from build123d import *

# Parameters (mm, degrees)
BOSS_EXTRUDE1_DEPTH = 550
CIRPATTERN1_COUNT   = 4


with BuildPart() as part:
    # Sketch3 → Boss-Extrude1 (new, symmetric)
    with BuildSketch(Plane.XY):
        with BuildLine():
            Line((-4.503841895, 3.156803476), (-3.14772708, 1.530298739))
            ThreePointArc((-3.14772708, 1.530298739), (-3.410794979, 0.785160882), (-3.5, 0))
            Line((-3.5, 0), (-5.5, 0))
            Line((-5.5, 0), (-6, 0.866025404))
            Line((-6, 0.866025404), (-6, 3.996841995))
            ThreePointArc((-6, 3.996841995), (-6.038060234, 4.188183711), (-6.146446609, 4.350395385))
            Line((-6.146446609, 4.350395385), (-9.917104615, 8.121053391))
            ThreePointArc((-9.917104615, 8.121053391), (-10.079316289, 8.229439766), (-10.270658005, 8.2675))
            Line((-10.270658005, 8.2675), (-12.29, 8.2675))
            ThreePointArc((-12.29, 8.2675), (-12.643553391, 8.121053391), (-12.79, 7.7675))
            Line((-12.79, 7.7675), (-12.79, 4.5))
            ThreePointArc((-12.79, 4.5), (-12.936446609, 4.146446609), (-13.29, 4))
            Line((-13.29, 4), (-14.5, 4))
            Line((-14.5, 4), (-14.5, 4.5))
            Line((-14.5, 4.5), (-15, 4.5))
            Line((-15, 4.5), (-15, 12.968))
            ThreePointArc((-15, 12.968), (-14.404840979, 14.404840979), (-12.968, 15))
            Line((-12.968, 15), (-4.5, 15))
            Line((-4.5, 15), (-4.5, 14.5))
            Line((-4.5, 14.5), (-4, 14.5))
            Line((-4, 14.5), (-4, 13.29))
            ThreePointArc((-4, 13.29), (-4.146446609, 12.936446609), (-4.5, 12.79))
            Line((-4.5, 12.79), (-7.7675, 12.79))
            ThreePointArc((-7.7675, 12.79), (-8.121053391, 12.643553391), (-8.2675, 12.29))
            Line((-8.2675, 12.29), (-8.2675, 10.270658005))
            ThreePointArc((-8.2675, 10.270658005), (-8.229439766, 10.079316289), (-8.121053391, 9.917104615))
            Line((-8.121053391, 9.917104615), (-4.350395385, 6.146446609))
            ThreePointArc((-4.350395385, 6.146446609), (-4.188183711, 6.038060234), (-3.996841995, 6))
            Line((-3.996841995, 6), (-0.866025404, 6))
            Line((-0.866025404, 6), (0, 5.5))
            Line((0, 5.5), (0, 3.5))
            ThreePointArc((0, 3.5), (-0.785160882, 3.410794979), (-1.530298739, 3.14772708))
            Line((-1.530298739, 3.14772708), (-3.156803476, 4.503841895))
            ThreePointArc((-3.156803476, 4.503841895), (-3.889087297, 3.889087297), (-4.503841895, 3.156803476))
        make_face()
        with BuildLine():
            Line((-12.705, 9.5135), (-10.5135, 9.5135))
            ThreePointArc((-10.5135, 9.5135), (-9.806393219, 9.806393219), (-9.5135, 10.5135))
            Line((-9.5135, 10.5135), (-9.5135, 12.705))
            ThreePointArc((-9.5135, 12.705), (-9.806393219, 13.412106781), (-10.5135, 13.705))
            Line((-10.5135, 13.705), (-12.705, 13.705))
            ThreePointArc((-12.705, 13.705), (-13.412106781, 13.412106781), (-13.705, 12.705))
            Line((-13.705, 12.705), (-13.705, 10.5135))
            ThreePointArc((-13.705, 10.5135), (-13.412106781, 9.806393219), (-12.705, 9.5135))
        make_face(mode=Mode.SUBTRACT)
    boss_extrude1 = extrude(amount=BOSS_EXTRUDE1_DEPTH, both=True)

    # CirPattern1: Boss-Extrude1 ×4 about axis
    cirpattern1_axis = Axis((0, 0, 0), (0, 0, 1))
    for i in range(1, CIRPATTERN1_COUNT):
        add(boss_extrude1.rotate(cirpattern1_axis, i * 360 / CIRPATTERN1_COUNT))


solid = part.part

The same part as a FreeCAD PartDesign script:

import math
import FreeCAD as App
import Part
import Sketcher
from FreeCAD import Vector
Q = App.Units.Quantity

doc = App.newDocument("Part")
params = doc.addObject("Spreadsheet::Sheet", "Params")
for row, (alias, value) in enumerate([
    ("sketch1_radius", "1 mm"),
    ("sketch1_radius2", "5.5 mm"),
    ("sketch1_radius3", "3.5 mm"),
    ("sketch1_radius4", "0.5 mm"),
    ("sketch1_width", "2 mm"),
    ("pad1_length", "1100 mm"),
], start=1):
    params.set(f"A{row}", alias)
    params.set(f"B{row}", "=" + value)
    params.setAlias(f"B{row}", alias)

body = doc.addObject("PartDesign::Body", "Body")

# Sketch on XY plane
sketch1 = body.newObject("Sketcher::SketchObject", "Sketch")
sketch1.AttachmentSupport = (doc.getObject("XY_Plane"), [""])
sketch1.MapMode = "FlatFace"
sketch1.addGeometry([
    Part.LineSegment(Vector(-3.147727, 1.530299, 0), Vector(-4.503842, 3.156803, 0)),  # 0
    Part.ArcOfCircle(Part.Circle(Vector(0, 0, 0), Vector(0, 0, 1), 5.5), math.radians(125.027131), math.radians(144.972869)),  # 1
    Part.LineSegment(Vector(-3.156803, 4.503842, 0), Vector(-1.530299, 3.147727, 0)),  # 2
    Part.ArcOfCircle(Part.Circle(Vector(0, 0, 0), Vector(0, 0, 1), 3.5), math.radians(90), math.radians(115.927163)),  # 3
    Part.LineSegment(Vector(0, 3.5, 0), Vector(0, 5.5, 0)),  # 4
    Part.LineSegment(Vector(0, 5.5, 0), Vector(-0.866025, 6, 0)),  # 5
    Part.LineSegment(Vector(-0.866025, 6, 0), Vector(-3.996842, 6, 0)),  # 6
    Part.ArcOfCircle(Part.Circle(Vector(-3.996842, 6.5, 0), Vector(0, 0, 1), 0.5), math.radians(-135), math.radians(-90)),  # 7
    Part.LineSegment(Vector(-4.350395, 6.146447, 0), Vector(-8.121053, 9.917105, 0)),  # 8
    Part.ArcOfCircle(Part.Circle(Vector(-7.7675, 10.270658, 0), Vector(0, 0, 1), 0.5), math.radians(-180), math.radians(-135)),  # 9
    Part.LineSegment(Vector(-8.2675, 10.270658, 0), Vector(-8.2675, 12.29, 0)),  # 10
    Part.ArcOfCircle(Part.Circle(Vector(-7.7675, 12.29, 0), Vector(0, 0, 1), 0.5), math.radians(90), math.radians(180)),  # 11
    Part.LineSegment(Vector(-7.7675, 12.79, 0), Vector(-4.5, 12.79, 0)),  # 12
    Part.ArcOfCircle(Part.Circle(Vector(-4.5, 13.29, 0), Vector(0, 0, 1), 0.5), math.radians(-90), math.radians(0)),  # 13
    Part.LineSegment(Vector(-4, 13.29, 0), Vector(-4, 14.5, 0)),  # 14
    Part.LineSegment(Vector(-4, 14.5, 0), Vector(-4.5, 14.5, 0)),  # 15
    Part.LineSegment(Vector(-4.5, 14.5, 0), Vector(-4.5, 15, 0)),  # 16
    Part.LineSegment(Vector(-4.5, 15, 0), Vector(-12.968, 15, 0)),  # 17
    Part.ArcOfCircle(Part.Circle(Vector(-12.968, 12.968, 0), Vector(0, 0, 1), 2.032), math.radians(90), math.radians(180)),  # 18
    Part.LineSegment(Vector(-15, 12.968, 0), Vector(-15, 4.5, 0)),  # 19
    Part.LineSegment(Vector(-15, 4.5, 0), Vector(-14.5, 4.5, 0)),  # 20
    Part.LineSegment(Vector(-14.5, 4.5, 0), Vector(-14.5, 4, 0)),  # 21
    Part.LineSegment(Vector(-14.5, 4, 0), Vector(-13.29, 4, 0)),  # 22
    Part.ArcOfCircle(Part.Circle(Vector(-13.29, 4.5, 0), Vector(0, 0, 1), 0.5), math.radians(-90), math.radians(0)),  # 23
    Part.LineSegment(Vector(-12.79, 4.5, 0), Vector(-12.79, 7.7675, 0)),  # 24
    Part.ArcOfCircle(Part.Circle(Vector(-12.29, 7.7675, 0), Vector(0, 0, 1), 0.5), math.radians(90), math.radians(180)),  # 25
    Part.LineSegment(Vector(-12.29, 8.2675, 0), Vector(-10.270658, 8.2675, 0)),  # 26
    Part.ArcOfCircle(Part.Circle(Vector(-10.270658, 7.7675, 0), Vector(0, 0, 1), 0.5), math.radians(45), math.radians(90)),  # 27
    Part.LineSegment(Vector(-9.917105, 8.121053, 0), Vector(-6.146447, 4.350395, 0)),  # 28
    Part.ArcOfCircle(Part.Circle(Vector(-6.5, 3.996842, 0), Vector(0, 0, 1), 0.5), math.radians(0), math.radians(45)),  # 29
    Part.LineSegment(Vector(-6, 3.996842, 0), Vector(-6, 0.866025, 0)),  # 30
    Part.LineSegment(Vector(-6, 0.866025, 0), Vector(-5.5, 0, 0)),  # 31
    Part.LineSegment(Vector(-5.5, 0, 0), Vector(-3.5, 0, 0)),  # 32
    Part.ArcOfCircle(Part.Circle(Vector(0, 0, 0), Vector(0, 0, 1), 3.5), math.radians(154.072837), math.radians(180)),  # 33
    Part.ArcOfCircle(Part.Circle(Vector(-12.705, 10.5135, 0), Vector(0, 0, 1), 1), math.radians(-180), math.radians(-90)),  # 34
    Part.LineSegment(Vector(-13.705, 10.5135, 0), Vector(-13.705, 12.705, 0)),  # 35
    Part.ArcOfCircle(Part.Circle(Vector(-12.705, 12.705, 0), Vector(0, 0, 1), 1), math.radians(90), math.radians(180)),  # 36
    Part.LineSegment(Vector(-12.705, 13.705, 0), Vector(-10.5135, 13.705, 0)),  # 37
    Part.ArcOfCircle(Part.Circle(Vector(-10.5135, 12.705, 0), Vector(0, 0, 1), 1), math.radians(0), math.radians(90)),  # 38
    Part.LineSegment(Vector(-9.5135, 12.705, 0), Vector(-9.5135, 10.5135, 0)),  # 39
    Part.ArcOfCircle(Part.Circle(Vector(-10.5135, 10.5135, 0), Vector(0, 0, 1), 1), math.radians(-90), math.radians(0)),  # 40
    Part.LineSegment(Vector(-10.5135, 9.5135, 0), Vector(-12.705, 9.5135, 0)),  # 41
], False)
sketch1.addConstraint([
    Sketcher.Constraint("Coincident", 0, 2, 1, 2),
    Sketcher.Constraint("Coincident", 1, 1, 2, 1),
    Sketcher.Constraint("Coincident", 2, 2, 3, 2),
    Sketcher.Constraint("Coincident", 3, 1, 4, 1),
    Sketcher.Constraint("Coincident", 4, 2, 5, 1),
    Sketcher.Constraint("Coincident", 5, 2, 6, 1),
    Sketcher.Constraint("Tangent", 6, 2, 7, 2),
    Sketcher.Constraint("Tangent", 7, 1, 8, 1),
    Sketcher.Constraint("Tangent", 8, 2, 9, 2),
    Sketcher.Constraint("Tangent", 9, 1, 10, 1),
    Sketcher.Constraint("Tangent", 10, 2, 11, 2),
    Sketcher.Constraint("Tangent", 11, 1, 12, 1),
    Sketcher.Constraint("Tangent", 12, 2, 13, 1),
    Sketcher.Constraint("Tangent", 13, 2, 14, 1),
    Sketcher.Constraint("Coincident", 14, 2, 15, 1),
    Sketcher.Constraint("Coincident", 15, 2, 16, 1),
    Sketcher.Constraint("Coincident", 16, 2, 17, 1),
    Sketcher.Constraint("Tangent", 17, 2, 18, 1),
    Sketcher.Constraint("Tangent", 18, 2, 19, 1),
    Sketcher.Constraint("Coincident", 19, 2, 20, 1),
    Sketcher.Constraint("Coincident", 20, 2, 21, 1),
    Sketcher.Constraint("Coincident", 21, 2, 22, 1),
    Sketcher.Constraint("Tangent", 22, 2, 23, 1),
    Sketcher.Constraint("Tangent", 23, 2, 24, 1),
    Sketcher.Constraint("Tangent", 24, 2, 25, 2),
    Sketcher.Constraint("Tangent", 25, 1, 26, 1),
    Sketcher.Constraint("Tangent", 26, 2, 27, 2),
    Sketcher.Constraint("Tangent", 27, 1, 28, 1),
    Sketcher.Constraint("Tangent", 28, 2, 29, 2),
    Sketcher.Constraint("Tangent", 29, 1, 30, 1),
    Sketcher.Constraint("Coincident", 30, 2, 31, 1),
    Sketcher.Constraint("Coincident", 31, 2, 32, 1),
    Sketcher.Constraint("Coincident", 32, 2, 33, 2),
    Sketcher.Constraint("Coincident", 33, 1, 0, 1),
    Sketcher.Constraint("Tangent", 34, 1, 35, 1),
    Sketcher.Constraint("Tangent", 35, 2, 36, 2),
    Sketcher.Constraint("Tangent", 36, 1, 37, 1),
    Sketcher.Constraint("Tangent", 37, 2, 38, 2),
    Sketcher.Constraint("Tangent", 38, 1, 39, 1),
    Sketcher.Constraint("Tangent", 39, 2, 40, 2),
    Sketcher.Constraint("Tangent", 40, 1, 41, 1),
    Sketcher.Constraint("Tangent", 41, 2, 34, 2),
    Sketcher.Constraint("Vertical", 4),
    Sketcher.Constraint("Horizontal", 6),
    Sketcher.Constraint("Vertical", 10),
    Sketcher.Constraint("Horizontal", 12),
    Sketcher.Constraint("Vertical", 14),
    Sketcher.Constraint("Horizontal", 15),
    Sketcher.Constraint("Vertical", 16),
    Sketcher.Constraint("Horizontal", 17),
    Sketcher.Constraint("Vertical", 19),
    Sketcher.Constraint("Horizontal", 20),
    Sketcher.Constraint("Vertical", 21),
    Sketcher.Constraint("Horizontal", 22),
    Sketcher.Constraint("Vertical", 24),
    Sketcher.Constraint("Horizontal", 26),
    Sketcher.Constraint("Vertical", 30),
    Sketcher.Constraint("Horizontal", 32),
    Sketcher.Constraint("Vertical", 35),
    Sketcher.Constraint("Horizontal", 37),
    Sketcher.Constraint("Vertical", 39),
    Sketcher.Constraint("Horizontal", 41),
    Sketcher.Constraint("Coincident", 1, 3, -1, 1),
    Sketcher.Constraint("Coincident", 3, 3, -1, 1),
    Sketcher.Constraint("Coincident", 33, 3, -1, 1),
    Sketcher.Constraint("Equal", 7, 9),
    Sketcher.Constraint("Equal", 9, 11),
    Sketcher.Constraint("Equal", 11, 13),
    Sketcher.Constraint("Equal", 13, 23),
    Sketcher.Constraint("Equal", 23, 25),
    Sketcher.Constraint("Equal", 25, 27),
    Sketcher.Constraint("Equal", 27, 29),
    Sketcher.Constraint("Equal", 3, 33),
    Sketcher.Constraint("Equal", 34, 36),
    Sketcher.Constraint("Equal", 36, 38),
    Sketcher.Constraint("Equal", 38, 40),
    Sketcher.Constraint("PointOnObject", 3, 1, -2),
    Sketcher.Constraint("PointOnObject", 31, 2, -1),
    Sketcher.Constraint("Parallel", 8, 28),
    Sketcher.Constraint("Horizontal", 23, 3, 19, 2),
    Sketcher.Constraint("Vertical", 12, 2, 15, 2),
    Sketcher.Constraint("Equal", 15, 20),
    Sketcher.Constraint("Equal", 32, 4),
    Sketcher.Constraint("Equal", 26, 10),
    Sketcher.Constraint("Equal", 22, 14),
    Sketcher.Constraint("Equal", 20, 16),
    Sketcher.Constraint("Equal", 17, 19),
    Sketcher.Constraint("Equal", 12, 24),
    Sketcher.Constraint("Equal", 6, 30),
    Sketcher.Constraint("Equal", 41, 35),
    Sketcher.Constraint("Equal", 0, 2),
    Sketcher.Constraint("Equal", 8, 28),
    Sketcher.Constraint("Equal", 5, 31),
    Sketcher.Constraint("Radius", 34, Q("1 mm")),
    Sketcher.Constraint("Radius", 1, Q("5.5 mm")),
    Sketcher.Constraint("Radius", 3, Q("3.5 mm")),
    Sketcher.Constraint("Radius", 7, Q("0.5 mm")),
    Sketcher.Constraint("DistanceX", 32, 1, 32, 2, Q("2 mm")),
    Sketcher.Constraint("Angle", 5, Q("150 deg")),
    Sketcher.Constraint("Angle", 8, Q("135 deg")),
    Sketcher.Constraint("Distance", 5, Q("1 mm")),
    Sketcher.Constraint("DistanceX", 13, 2, -1, 1, Q("4 mm")),
    Sketcher.Constraint("DistanceY", -1, 1, 16, 2, Q("15 mm")),
    Sketcher.Constraint("Radius", 18, Q("2.032 mm")),
    Sketcher.Constraint("DistanceX", 22, 1, 22, 2, Q("1.21 mm")),
    Sketcher.Constraint("Angle", 0, Q("129.82 deg")),
    Sketcher.Constraint("Angle", 2, Q("-39.82 deg")),
    Sketcher.Constraint("DistanceX", 12, 1, 12, 2, Q("3.2675 mm")),
    Sketcher.Constraint("DistanceX", 37, 1, 37, 2, Q("2.1915 mm")),
    Sketcher.Constraint("DistanceX", 34, 3, -1, 1, Q("12.705 mm")),
    Sketcher.Constraint("DistanceY", -1, 1, 36, 3, Q("12.705 mm")),
    Sketcher.Constraint("DistanceX", 0, 2, 7, 3, Q("0.507 mm")),
    Sketcher.Constraint("DistanceX", 26, 1, 26, 2, Q("2.019342 mm")),
])
sketch1.setExpression("Constraints[93]", "Params.sketch1_radius")
sketch1.setExpression("Constraints[94]", "Params.sketch1_radius2")
sketch1.setExpression("Constraints[95]", "Params.sketch1_radius3")
sketch1.setExpression("Constraints[96]", "Params.sketch1_radius4")
sketch1.setExpression("Constraints[97]", "Params.sketch1_width")
pad1 = body.newObject("PartDesign::Pad", "Pad")
pad1.Profile = sketch1
pad1.setExpression("Length", "Params.pad1_length")
pad1.Midplane = True
doc.recompute()

polarpattern = body.newObject("PartDesign::PolarPattern", "PolarPattern")
polarpattern.Originals = [pad1]
polarpattern.Axis = (doc.getObject("Z_Axis"), [""])
polarpattern.Angle = 360
polarpattern.Occurrences = 4
body.Tip = polarpattern

doc.recompute()
